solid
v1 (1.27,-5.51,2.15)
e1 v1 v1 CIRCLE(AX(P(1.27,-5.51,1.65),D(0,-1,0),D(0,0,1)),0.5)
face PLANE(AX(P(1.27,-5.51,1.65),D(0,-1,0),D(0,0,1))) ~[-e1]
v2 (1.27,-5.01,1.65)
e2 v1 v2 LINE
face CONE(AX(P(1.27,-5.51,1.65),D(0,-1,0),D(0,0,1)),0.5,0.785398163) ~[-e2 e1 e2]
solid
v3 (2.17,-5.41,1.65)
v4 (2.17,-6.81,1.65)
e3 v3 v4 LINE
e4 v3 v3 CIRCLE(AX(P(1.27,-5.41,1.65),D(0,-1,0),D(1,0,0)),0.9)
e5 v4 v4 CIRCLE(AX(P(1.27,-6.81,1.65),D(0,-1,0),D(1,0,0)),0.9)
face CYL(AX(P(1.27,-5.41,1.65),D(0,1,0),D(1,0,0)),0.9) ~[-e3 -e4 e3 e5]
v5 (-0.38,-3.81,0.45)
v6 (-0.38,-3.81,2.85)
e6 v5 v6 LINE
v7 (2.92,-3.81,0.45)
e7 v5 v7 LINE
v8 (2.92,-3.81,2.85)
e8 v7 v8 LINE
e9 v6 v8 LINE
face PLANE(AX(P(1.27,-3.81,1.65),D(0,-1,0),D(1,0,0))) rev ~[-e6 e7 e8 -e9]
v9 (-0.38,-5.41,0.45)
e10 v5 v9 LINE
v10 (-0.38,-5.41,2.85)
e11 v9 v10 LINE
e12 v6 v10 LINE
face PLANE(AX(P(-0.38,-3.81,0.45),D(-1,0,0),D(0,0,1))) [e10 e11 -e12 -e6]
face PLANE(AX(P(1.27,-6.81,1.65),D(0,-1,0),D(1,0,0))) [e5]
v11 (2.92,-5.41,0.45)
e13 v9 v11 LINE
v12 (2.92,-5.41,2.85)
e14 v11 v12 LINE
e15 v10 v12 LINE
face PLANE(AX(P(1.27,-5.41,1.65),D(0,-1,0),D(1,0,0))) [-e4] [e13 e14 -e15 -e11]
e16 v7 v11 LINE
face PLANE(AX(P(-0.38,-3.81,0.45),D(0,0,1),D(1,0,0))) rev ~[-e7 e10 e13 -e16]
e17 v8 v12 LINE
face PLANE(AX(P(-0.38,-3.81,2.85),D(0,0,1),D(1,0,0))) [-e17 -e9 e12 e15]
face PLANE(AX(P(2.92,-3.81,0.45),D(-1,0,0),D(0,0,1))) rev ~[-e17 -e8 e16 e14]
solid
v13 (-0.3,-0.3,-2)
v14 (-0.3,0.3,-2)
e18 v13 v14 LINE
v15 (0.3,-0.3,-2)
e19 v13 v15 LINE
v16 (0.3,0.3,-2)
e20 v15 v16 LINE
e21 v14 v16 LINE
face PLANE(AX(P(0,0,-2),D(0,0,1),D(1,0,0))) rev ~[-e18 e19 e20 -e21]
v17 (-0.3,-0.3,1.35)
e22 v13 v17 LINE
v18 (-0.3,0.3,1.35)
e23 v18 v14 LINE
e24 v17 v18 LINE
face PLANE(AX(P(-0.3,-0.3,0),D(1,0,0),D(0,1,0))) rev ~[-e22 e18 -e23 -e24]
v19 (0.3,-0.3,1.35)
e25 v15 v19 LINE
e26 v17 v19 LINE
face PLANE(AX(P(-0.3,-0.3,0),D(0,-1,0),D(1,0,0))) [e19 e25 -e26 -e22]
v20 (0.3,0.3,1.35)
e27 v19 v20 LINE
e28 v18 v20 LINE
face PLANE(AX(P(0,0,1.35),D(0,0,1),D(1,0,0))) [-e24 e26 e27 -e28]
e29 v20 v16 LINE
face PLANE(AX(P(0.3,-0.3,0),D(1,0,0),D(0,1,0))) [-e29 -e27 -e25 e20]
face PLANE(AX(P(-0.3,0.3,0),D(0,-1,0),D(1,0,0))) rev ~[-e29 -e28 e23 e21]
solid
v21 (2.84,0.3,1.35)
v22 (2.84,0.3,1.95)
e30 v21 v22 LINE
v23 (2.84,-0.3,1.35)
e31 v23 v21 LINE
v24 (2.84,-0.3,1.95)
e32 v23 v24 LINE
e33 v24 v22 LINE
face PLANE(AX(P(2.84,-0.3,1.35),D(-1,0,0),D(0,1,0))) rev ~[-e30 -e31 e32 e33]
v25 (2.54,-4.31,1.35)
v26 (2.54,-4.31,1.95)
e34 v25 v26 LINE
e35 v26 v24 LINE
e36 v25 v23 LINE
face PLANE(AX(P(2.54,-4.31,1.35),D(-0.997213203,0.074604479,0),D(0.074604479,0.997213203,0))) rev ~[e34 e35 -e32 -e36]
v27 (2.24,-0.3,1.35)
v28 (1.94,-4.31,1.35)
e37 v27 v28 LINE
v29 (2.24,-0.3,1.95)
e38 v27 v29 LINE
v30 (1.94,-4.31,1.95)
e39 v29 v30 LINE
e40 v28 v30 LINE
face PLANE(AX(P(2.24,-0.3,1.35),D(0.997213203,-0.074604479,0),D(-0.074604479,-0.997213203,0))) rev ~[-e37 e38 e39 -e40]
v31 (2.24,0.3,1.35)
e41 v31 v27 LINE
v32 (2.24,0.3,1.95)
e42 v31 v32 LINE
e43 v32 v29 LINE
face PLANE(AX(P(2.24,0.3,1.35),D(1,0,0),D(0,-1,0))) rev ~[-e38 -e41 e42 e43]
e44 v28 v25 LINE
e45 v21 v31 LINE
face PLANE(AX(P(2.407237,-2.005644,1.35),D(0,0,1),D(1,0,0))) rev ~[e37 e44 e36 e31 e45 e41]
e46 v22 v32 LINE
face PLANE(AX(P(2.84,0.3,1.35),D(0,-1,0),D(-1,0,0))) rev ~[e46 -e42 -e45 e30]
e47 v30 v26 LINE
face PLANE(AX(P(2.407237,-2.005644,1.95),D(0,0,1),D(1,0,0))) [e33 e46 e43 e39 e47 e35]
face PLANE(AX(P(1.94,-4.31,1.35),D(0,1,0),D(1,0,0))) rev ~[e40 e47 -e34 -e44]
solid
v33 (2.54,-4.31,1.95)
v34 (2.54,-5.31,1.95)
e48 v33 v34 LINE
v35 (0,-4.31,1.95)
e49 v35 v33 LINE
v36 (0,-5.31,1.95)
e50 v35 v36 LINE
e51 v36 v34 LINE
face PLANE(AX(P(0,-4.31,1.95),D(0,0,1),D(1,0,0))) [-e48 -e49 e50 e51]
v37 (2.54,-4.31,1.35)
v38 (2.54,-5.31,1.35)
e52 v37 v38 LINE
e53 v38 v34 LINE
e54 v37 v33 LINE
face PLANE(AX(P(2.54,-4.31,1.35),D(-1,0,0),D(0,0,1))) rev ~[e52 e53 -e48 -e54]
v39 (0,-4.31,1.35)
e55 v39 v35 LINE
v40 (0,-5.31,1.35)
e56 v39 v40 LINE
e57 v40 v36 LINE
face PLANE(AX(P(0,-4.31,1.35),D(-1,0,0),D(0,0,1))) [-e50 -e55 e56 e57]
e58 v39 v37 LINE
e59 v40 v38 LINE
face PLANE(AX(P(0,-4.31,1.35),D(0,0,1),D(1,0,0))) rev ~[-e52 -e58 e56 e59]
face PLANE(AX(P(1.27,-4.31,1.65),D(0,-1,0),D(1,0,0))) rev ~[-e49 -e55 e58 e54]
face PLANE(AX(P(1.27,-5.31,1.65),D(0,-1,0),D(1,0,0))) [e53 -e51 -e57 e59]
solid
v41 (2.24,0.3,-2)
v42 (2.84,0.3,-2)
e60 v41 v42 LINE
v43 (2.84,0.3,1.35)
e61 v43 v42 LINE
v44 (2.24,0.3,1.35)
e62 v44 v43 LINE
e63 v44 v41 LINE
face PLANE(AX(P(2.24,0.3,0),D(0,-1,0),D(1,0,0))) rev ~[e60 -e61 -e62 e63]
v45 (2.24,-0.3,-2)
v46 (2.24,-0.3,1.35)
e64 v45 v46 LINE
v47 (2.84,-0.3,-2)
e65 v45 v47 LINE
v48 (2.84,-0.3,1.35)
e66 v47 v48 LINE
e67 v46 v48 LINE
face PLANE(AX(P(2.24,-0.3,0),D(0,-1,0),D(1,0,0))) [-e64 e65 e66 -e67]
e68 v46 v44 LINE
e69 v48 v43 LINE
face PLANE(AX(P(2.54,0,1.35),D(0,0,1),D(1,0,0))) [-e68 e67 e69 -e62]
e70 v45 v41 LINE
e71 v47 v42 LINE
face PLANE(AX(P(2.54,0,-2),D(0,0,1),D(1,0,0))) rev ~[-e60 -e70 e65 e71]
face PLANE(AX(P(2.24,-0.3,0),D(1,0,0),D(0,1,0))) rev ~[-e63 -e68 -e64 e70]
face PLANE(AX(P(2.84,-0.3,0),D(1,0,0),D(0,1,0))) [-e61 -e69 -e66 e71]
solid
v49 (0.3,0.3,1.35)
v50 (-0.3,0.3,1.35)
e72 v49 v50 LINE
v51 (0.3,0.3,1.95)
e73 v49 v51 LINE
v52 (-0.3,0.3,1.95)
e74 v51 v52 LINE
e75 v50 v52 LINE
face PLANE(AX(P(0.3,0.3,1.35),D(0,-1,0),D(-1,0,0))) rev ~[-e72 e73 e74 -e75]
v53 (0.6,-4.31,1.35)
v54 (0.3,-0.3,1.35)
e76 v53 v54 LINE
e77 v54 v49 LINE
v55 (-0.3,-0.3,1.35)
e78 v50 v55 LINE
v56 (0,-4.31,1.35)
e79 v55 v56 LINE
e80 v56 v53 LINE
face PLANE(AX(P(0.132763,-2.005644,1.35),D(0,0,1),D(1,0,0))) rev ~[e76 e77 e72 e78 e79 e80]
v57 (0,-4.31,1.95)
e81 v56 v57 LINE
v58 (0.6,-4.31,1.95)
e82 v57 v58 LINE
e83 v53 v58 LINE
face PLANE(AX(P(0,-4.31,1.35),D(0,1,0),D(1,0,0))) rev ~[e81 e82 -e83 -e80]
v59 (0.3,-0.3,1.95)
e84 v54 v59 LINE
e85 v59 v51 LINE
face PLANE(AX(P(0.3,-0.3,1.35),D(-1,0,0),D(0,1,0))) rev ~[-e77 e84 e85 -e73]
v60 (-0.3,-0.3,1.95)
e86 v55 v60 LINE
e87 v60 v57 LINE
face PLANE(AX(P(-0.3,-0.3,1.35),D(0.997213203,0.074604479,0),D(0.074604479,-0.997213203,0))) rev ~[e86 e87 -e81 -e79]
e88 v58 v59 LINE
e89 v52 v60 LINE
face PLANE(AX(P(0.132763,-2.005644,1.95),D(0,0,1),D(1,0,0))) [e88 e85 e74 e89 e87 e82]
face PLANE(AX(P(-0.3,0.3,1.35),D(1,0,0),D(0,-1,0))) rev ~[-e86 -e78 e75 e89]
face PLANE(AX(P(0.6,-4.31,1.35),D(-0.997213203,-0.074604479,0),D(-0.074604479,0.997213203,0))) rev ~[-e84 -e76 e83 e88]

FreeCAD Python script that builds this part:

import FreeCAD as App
import Part
import Sketcher
Q = App.Units.Quantity


def add_polygon(sketch, points):
    """Adds a closed chain of lines whose ends are joined by coincident constraints."""
    first, n = sketch.GeometryCount, len(points)
    for a, b in zip(points, points[1:] + points[:1]):
        sketch.addGeometry(Part.LineSegment(App.Vector(*a, 0), App.Vector(*b, 0)), False)
    for i in range(n):
        sketch.addConstraint(Sketcher.Constraint("Coincident", first + i, 2, first + (i + 1) % n, 1))

doc = App.newDocument("Part")
params = doc.addObject("Spreadsheet::Sheet", "Params")
for row, (alias, value) in enumerate([
    ("sketch1_width", "0.6 mm"),
    ("pad1_length", "1.35 mm"),
    ("pad1_length2", "2 mm"),
    ("sketch2_width", "0.6 mm"),
    ("pad2_length", "0.6 mm"),
    ("sketch3_height", "0.6 mm"),
    ("sketch3_width", "2.54 mm"),
    ("pad3_length", "1 mm"),
    ("sketch4_width", "0.5 mm"),
    ("revolution_angle", "360 deg"),
    ("sketch5_width", "3.3 mm"),
    ("sketch5_height", "2.4 mm"),
    ("pad4_length", "1.6 mm"),
    ("sketch6_diameter", "1.8 mm"),
    ("pad5_length", "1.4 mm"),
], start=1):
    params.set(f"A{row}", alias)
    params.set(f"B{row}", "=" + value)
    params.setAlias(f"B{row}", alias)

body = doc.addObject("PartDesign::Body", "Body")
body.AllowCompound = True

# Sketch on XY plane
sketch1 = doc.addObject("Sketcher::SketchObject", "Sketch")
body.addObject(sketch1)
sketch1.AttachmentSupport = (doc.XY_Plane, [""])
sketch1.MapMode = "FlatFace"
add_polygon(sketch1, [(-0.3, 0.3), (-0.3, -0.3), (0.3, -0.3), (0.3, 0.3)])  # lines 0-3
add_polygon(sketch1, [(2.24, 0.3), (2.24, -0.3), (2.84, -0.3), (2.84, 0.3)])  # lines 4-7
sketch1.addConstraint([
    Sketcher.Constraint("Vertical", 0),
    Sketcher.Constraint("Horizontal", 1),
    Sketcher.Constraint("Vertical", 2),
    Sketcher.Constraint("Horizontal", 3),
    Sketcher.Constraint("Vertical", 4),
    Sketcher.Constraint("Horizontal", 5),
    Sketcher.Constraint("Vertical", 6),
    Sketcher.Constraint("Horizontal", 7),
    Sketcher.Constraint("Symmetric", 0, 2, 2, 2, -1, 1),
    Sketcher.Constraint("Horizontal", 1, 2, 4, 2),
    Sketcher.Constraint("Horizontal", 3, 2, 6, 2),
    Sketcher.Constraint("Equal", 3, 5),
    Sketcher.Constraint("Equal", 7, 0),
    Sketcher.Constraint("DistanceX", 1, 1, 1, 2, Q("0.6 mm")),
    Sketcher.Constraint("DistanceX", -1, 1, 4, 2, Q("2.24 mm")),
])
sketch1.setExpression("Constraints[21]", "Params.sketch1_width")
pad1 = doc.addObject("PartDesign::Pad", "Pad")
body.addObject(pad1)
pad1.Profile = sketch1
pad1.Type = "TwoLengths"
pad1.setExpression("Length", "Params.pad1_length")
pad1.setExpression("Length2", "Params.pad1_length2")
body2 = doc.addObject("PartDesign::Body", "Body001")
body2.AllowCompound = True

# Sketch on XY plane
sketch2 = doc.addObject("Sketcher::SketchObject", "Sketch001")
body2.addObject(sketch2)
sketch2.AttachmentSupport = (doc.getObject("XY_Plane001"), [""])
sketch2.MapMode = "FlatFace"
sketch2.AttachmentOffset = App.Placement(App.Vector(0, 0, 1.35), App.Rotation())
add_polygon(sketch2, [(0.3, 0.3), (-0.3, 0.3), (-0.3, -0.3), (0, -4.31), (0.6, -4.31), (0.3, -0.3)])  # lines 0-5
add_polygon(sketch2, [(2.84, 0.3), (2.24, 0.3), (2.24, -0.3), (1.94, -4.31), (2.54, -4.31), (2.84, -0.3)])  # lines 6-11
sketch2.addConstraint([
    Sketcher.Constraint("Horizontal", 0),
    Sketcher.Constraint("Vertical", 1),
    Sketcher.Constraint("Horizontal", 3),
    Sketcher.Constraint("Vertical", 5),
    Sketcher.Constraint("Horizontal", 6),
    Sketcher.Constraint("Vertical", 7),
    Sketcher.Constraint("Horizontal", 9),
    Sketcher.Constraint("Vertical", 11),
    Sketcher.Constraint("Symmetric", 0, 2, 4, 2, -1, 1),
    Sketcher.Constraint("PointOnObject", 2, 2, -2),
    Sketcher.Constraint("Parallel", 2, 4),
    Sketcher.Constraint("Parallel", 8, 10),
    Sketcher.Constraint("Horizontal", 1, 2, 4, 2),
    Sketcher.Constraint("Horizontal", 5, 2, 6, 2),
    Sketcher.Constraint("Horizontal", 4, 2, 7, 2),
    Sketcher.Constraint("Horizontal", 3, 2, 8, 2),
    Sketcher.Constraint("Horizontal", 7, 2, 10, 2),
    Sketcher.Constraint("Equal", 3, 6),
    Sketcher.Constraint("Equal", 9, 1),
    Sketcher.Constraint("Equal", 4, 8),
    Sketcher.Constraint("DistanceX", 0, 2, 0, 1, Q("0.6 mm")),
    Sketcher.Constraint("DistanceY", 2, 2, -1, 1, Q("4.31 mm")),
    Sketcher.Constraint("DistanceX", -1, 1, 6, 2, Q("2.24 mm")),
])
sketch2.setExpression("Constraints[32]", "Params.sketch2_width")
pad2 = doc.addObject("PartDesign::Pad", "Pad001")
body2.addObject(pad2)
pad2.Profile = sketch2
pad2.setExpression("Length", "Params.pad2_length")
body3 = doc.addObject("PartDesign::Body", "Body002")

# Sketch on XZ plane
sketch3 = doc.addObject("Sketcher::SketchObject", "Sketch002")
body3.addObject(sketch3)
sketch3.AttachmentSupport = (doc.getObject("XZ_Plane002"), [""])
sketch3.MapMode = "FlatFace"
sketch3.AttachmentOffset = App.Placement(App.Vector(0, 0, 4.31), App.Rotation())
add_polygon(sketch3, [(0, 1.95), (0, 1.35), (2.54, 1.35), (2.54, 1.95)])  # lines 0-3
sketch3.addConstraint([
    Sketcher.Constraint("Vertical", 0),
    Sketcher.Constraint("Horizontal", 1),
    Sketcher.Constraint("Vertical", 2),
    Sketcher.Constraint("Horizontal", 3),
    Sketcher.Constraint("PointOnObject", 0, 2, -2),
    Sketcher.Constraint("DistanceY", 0, 2, 0, 1, Q("0.6 mm")),
    Sketcher.Constraint("DistanceX", 1, 1, 1, 2, Q("2.54 mm")),
    Sketcher.Constraint("DistanceY", -1, 1, 0, 2, Q("1.35 mm")),
])
sketch3.setExpression("Constraints[9]", "Params.sketch3_height")
sketch3.setExpression("Constraints[10]", "Params.sketch3_width")
pad3 = doc.addObject("PartDesign::Pad", "Pad002")
body3.addObject(pad3)
pad3.Profile = sketch3
pad3.setExpression("Length", "Params.pad3_length")
body4 = doc.addObject("PartDesign::Body", "Body003")

# Sketch on YZ plane
sketch4 = doc.addObject("Sketcher::SketchObject", "Sketch003")
body4.addObject(sketch4)
sketch4.AttachmentSupport = (doc.getObject("YZ_Plane003"), [""])
sketch4.MapMode = "FlatFace"
sketch4.AttachmentOffset = App.Placement(App.Vector(0, 0, 1.27), App.Rotation())
add_polygon(sketch4, [(-5.51, 1.65), (-5.01, 1.65), (-5.51, 2.15)])  # lines 0-2
sketch4.addGeometry(Part.LineSegment(App.Vector(-5.01, 1.65, 0), App.Vector(-5.51, 1.65, 0)), True)  # axis
sketch4.addConstraint([
    Sketcher.Constraint("Horizontal", 0),
    Sketcher.Constraint("Vertical", 2),
    Sketcher.Constraint("Horizontal", 3),
    Sketcher.Constraint("Coincident", 3, 1, 0, 2),
    Sketcher.Constraint("Vertical", 1, 2, 3, 2),
    Sketcher.Constraint("Equal", 3, 2),
    Sketcher.Constraint("DistanceX", 0, 1, 0, 2, Q("0.5 mm")),
    Sketcher.Constraint("DistanceX", 0, 2, -1, 1, Q("5.01 mm")),
    Sketcher.Constraint("DistanceY", -1, 1, 0, 2, Q("1.65 mm")),
])
sketch4.setExpression("Constraints[9]", "Params.sketch4_width")
revolution = doc.addObject("PartDesign::Revolution", "Revolution")
body4.addObject(revolution)
revolution.Profile = sketch4
revolution.ReferenceAxis = (sketch4, ["Axis0"])
revolution.setExpression("Angle", "Params.revolution_angle")
body5 = doc.addObject("PartDesign::Body", "Body004")

# Sketch on XZ plane
sketch5 = doc.addObject("Sketcher::SketchObject", "Sketch004")
body5.addObject(sketch5)
sketch5.AttachmentSupport = (doc.getObject("XZ_Plane004"), [""])
sketch5.MapMode = "FlatFace"
sketch5.AttachmentOffset = App.Placement(App.Vector(0, 0, 3.81), App.Rotation())
add_polygon(sketch5, [(-0.38, 2.85), (-0.38, 0.45), (2.92, 0.45), (2.92, 2.85)])  # lines 0-3
sketch5.addConstraint([
    Sketcher.Constraint("Vertical", 0),
    Sketcher.Constraint("Horizontal", 1),
    Sketcher.Constraint("Vertical", 2),
    Sketcher.Constraint("Horizontal", 3),
    Sketcher.Constraint("DistanceX", 1, 1, 1, 2, Q("3.3 mm")),
    Sketcher.Constraint("DistanceY", 0, 2, 0, 1, Q("2.4 mm")),
    Sketcher.Constraint("DistanceX", 0, 2, -1, 1, Q("0.38 mm")),
    Sketcher.Constraint("DistanceY", -1, 1, 0, 2, Q("0.45 mm")),
])
sketch5.setExpression("Constraints[8]", "Params.sketch5_width")
sketch5.setExpression("Constraints[9]", "Params.sketch5_height")
pad4 = doc.addObject("PartDesign::Pad", "Pad003")
body5.addObject(pad4)
pad4.Profile = sketch5
pad4.setExpression("Length", "Params.pad4_length")

# Sketch on XZ plane
sketch6 = doc.addObject("Sketcher::SketchObject", "Sketch005")
body5.addObject(sketch6)
sketch6.AttachmentSupport = (doc.getObject("XZ_Plane004"), [""])
sketch6.MapMode = "FlatFace"
sketch6.AttachmentOffset = App.Placement(App.Vector(0, 0, 5.41), App.Rotation())
sketch6.addGeometry(Part.Circle(App.Vector(1.27, 1.65, 0), App.Vector(0, 0, 1), 0.9), False)
sketch6.addConstraint([
    Sketcher.Constraint("Diameter", 0, Q("1.8 mm")),
    Sketcher.Constraint("DistanceX", -1, 1, 0, 3, Q("1.27 mm")),
    Sketcher.Constraint("DistanceY", -1, 1, 0, 3, Q("1.65 mm")),
])
sketch6.setExpression("Constraints[0]", "Params.sketch6_diameter")
pad5 = doc.addObject("PartDesign::Pad", "Pad004")
body5.addObject(pad5)
pad5.Profile = sketch6
pad5.setExpression("Length", "Params.pad5_length")

doc.recompute()
